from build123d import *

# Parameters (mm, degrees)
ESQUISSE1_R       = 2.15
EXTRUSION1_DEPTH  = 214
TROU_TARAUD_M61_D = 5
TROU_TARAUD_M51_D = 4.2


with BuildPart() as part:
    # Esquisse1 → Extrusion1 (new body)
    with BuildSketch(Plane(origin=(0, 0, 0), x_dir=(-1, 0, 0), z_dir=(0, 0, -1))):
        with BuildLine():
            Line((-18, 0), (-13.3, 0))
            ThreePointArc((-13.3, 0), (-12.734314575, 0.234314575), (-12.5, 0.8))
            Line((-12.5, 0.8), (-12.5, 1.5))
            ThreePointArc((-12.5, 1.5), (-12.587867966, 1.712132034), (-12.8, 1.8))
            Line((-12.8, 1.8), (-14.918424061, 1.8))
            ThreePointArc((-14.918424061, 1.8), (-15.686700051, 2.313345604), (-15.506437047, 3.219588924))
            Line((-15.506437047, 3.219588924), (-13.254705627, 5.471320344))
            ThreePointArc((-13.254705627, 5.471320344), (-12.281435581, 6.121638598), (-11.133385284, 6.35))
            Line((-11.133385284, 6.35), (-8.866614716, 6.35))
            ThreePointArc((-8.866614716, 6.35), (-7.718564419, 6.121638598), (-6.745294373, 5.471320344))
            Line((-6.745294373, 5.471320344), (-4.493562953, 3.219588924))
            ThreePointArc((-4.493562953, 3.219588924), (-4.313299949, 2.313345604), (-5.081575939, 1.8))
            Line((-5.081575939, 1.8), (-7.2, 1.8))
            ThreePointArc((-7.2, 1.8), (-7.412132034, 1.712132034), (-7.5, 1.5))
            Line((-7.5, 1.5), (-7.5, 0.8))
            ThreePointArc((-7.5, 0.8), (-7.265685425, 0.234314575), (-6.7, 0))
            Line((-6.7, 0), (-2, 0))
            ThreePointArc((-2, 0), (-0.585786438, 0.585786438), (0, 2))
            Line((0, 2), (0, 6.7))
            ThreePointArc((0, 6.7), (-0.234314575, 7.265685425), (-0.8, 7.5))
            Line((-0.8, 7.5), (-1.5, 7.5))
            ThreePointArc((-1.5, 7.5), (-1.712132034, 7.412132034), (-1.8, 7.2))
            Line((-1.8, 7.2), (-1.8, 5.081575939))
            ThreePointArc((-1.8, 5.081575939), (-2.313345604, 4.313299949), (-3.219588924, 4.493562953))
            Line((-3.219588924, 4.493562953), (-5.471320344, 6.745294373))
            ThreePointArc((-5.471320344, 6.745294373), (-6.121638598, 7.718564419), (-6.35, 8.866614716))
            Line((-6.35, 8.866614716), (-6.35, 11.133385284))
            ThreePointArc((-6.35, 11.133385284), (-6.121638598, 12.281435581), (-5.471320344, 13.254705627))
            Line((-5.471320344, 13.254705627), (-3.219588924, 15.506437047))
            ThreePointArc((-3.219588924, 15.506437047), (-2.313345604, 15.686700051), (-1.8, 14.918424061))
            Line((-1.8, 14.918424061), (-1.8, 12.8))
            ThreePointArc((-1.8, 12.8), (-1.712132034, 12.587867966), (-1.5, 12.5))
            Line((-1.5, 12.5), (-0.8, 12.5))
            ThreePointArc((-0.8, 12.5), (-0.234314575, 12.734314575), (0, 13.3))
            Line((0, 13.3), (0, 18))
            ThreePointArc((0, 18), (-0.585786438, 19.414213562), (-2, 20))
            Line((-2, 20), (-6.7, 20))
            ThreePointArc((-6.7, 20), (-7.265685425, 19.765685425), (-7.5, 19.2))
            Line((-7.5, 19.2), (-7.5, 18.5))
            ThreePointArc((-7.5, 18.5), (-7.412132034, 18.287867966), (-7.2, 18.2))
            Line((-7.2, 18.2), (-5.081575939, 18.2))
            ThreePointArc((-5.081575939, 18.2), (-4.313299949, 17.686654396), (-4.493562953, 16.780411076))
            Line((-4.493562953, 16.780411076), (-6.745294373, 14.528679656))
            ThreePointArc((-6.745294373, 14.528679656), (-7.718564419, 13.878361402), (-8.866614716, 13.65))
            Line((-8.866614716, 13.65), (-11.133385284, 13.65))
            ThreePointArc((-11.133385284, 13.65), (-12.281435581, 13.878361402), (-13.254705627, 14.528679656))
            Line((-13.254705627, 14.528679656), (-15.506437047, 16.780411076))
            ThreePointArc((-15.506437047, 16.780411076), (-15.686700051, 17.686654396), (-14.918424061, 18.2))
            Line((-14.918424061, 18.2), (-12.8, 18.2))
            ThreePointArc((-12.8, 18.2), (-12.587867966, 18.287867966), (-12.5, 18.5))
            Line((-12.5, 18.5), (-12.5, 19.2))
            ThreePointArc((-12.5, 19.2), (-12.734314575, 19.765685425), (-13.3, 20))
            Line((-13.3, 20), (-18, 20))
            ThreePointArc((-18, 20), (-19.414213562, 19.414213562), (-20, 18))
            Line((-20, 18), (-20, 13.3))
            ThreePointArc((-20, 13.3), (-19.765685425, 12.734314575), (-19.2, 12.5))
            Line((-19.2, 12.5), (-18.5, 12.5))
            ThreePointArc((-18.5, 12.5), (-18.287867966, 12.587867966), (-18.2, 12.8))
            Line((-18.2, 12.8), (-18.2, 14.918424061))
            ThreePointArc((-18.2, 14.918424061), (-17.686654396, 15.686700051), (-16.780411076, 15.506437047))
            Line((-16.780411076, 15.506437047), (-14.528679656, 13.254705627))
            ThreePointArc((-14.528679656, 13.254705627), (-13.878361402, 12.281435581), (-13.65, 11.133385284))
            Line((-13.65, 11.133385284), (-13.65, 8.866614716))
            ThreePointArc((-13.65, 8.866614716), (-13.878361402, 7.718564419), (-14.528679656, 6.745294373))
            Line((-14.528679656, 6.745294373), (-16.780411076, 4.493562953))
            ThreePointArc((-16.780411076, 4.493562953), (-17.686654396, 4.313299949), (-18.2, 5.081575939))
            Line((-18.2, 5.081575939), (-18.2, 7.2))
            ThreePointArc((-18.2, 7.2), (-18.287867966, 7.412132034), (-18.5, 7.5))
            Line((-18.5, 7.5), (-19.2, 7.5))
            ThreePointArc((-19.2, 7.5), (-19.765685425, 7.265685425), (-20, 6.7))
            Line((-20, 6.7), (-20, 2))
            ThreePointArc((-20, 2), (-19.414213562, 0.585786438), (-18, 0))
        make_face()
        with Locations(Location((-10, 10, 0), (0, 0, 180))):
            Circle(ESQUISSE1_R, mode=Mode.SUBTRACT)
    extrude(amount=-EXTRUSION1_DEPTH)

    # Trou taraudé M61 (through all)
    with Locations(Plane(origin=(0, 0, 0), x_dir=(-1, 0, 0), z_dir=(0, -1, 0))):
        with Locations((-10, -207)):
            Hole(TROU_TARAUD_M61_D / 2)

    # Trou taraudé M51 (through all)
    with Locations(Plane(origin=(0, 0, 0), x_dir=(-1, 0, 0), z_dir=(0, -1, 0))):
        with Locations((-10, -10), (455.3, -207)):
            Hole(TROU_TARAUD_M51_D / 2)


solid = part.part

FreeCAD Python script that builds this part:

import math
import FreeCAD as App
import Part
import Sketcher
Q = App.Units.Quantity

doc = App.newDocument("Part")
body = doc.addObject("PartDesign::Body", "Body")

# Sketch on XY plane
sketch1 = doc.addObject("Sketcher::SketchObject", "Sketch")
body.addObject(sketch1)
sketch1.AttachmentSupport = (doc.XY_Plane, [""])
sketch1.MapMode = "FlatFace"
sketch1.addGeometry(Part.LineSegment(App.Vector(18, 0, 0), App.Vector(13.3, 0, 0)), False)
sketch1.addGeometry(Part.ArcOfCircle(Part.Circle(App.Vector(13.3, 0.8, 0), App.Vector(0, 0, 1), 0.8), math.radians(180), math.radians(270)), False)
sketch1.addGeometry(Part.LineSegment(App.Vector(12.5, 0.8, 0), App.Vector(12.5, 1.5, 0)), False)
sketch1.addGeometry(Part.ArcOfCircle(Part.Circle(App.Vector(12.8, 1.5, 0), App.Vector(0, 0, 1), 0.3), math.radians(90), math.radians(180)), False)
sketch1.addGeometry(Part.LineSegment(App.Vector(12.8, 1.8, 0), App.Vector(14.918424, 1.8, 0)), False)
sketch1.addGeometry(Part.ArcOfCircle(Part.Circle(App.Vector(14.918424, 2.631576, 0), App.Vector(0, 0, 1), 0.831576), math.radians(-90), math.radians(45)), False)
sketch1.addGeometry(Part.LineSegment(App.Vector(15.506437, 3.219589, 0), App.Vector(13.254706, 5.47132, 0)), False)
sketch1.addGeometry(Part.ArcOfCircle(Part.Circle(App.Vector(11.133385, 3.35, 0), App.Vector(0, 0, 1), 3), math.radians(45), math.radians(90)), False)
sketch1.addGeometry(Part.LineSegment(App.Vector(11.133385, 6.35, 0), App.Vector(8.866615, 6.35, 0)), False)
sketch1.addGeometry(Part.ArcOfCircle(Part.Circle(App.Vector(8.866615, 3.35, 0), App.Vector(0, 0, 1), 3), math.radians(90), math.radians(135)), False)
sketch1.addGeometry(Part.LineSegment(App.Vector(6.745294, 5.47132, 0), App.Vector(4.493563, 3.219589, 0)), False)
sketch1.addGeometry(Part.ArcOfCircle(Part.Circle(App.Vector(5.081576, 2.631576, 0), App.Vector(0, 0, 1), 0.831576), math.radians(135), math.radians(270)), False)
sketch1.addGeometry(Part.LineSegment(App.Vector(5.081576, 1.8, 0), App.Vector(7.2, 1.8, 0)), False)
sketch1.addGeometry(Part.ArcOfCircle(Part.Circle(App.Vector(7.2, 1.5, 0), App.Vector(0, 0, 1), 0.3), math.radians(0), math.radians(90)), False)
sketch1.addGeometry(Part.LineSegment(App.Vector(7.5, 1.5, 0), App.Vector(7.5, 0.8, 0)), False)
sketch1.addGeometry(Part.ArcOfCircle(Part.Circle(App.Vector(6.7, 0.8, 0), App.Vector(0, 0, 1), 0.8), math.radians(-90), math.radians(0)), False)
sketch1.addGeometry(Part.LineSegment(App.Vector(6.7, 0, 0), App.Vector(2, 0, 0)), False)
sketch1.addGeometry(Part.ArcOfCircle(Part.Circle(App.Vector(2, 2, 0), App.Vector(0, 0, 1), 2), math.radians(-180), math.radians(-90)), False)
sketch1.addGeometry(Part.LineSegment(App.Vector(0, 2, 0), App.Vector(0, 6.7, 0)), False)
sketch1.addGeometry(Part.ArcOfCircle(Part.Circle(App.Vector(0.8, 6.7, 0), App.Vector(0, 0, 1), 0.8), math.radians(90), math.radians(180)), False)
sketch1.addGeometry(Part.LineSegment(App.Vector(0.8, 7.5, 0), App.Vector(1.5, 7.5, 0)), False)
sketch1.addGeometry(Part.ArcOfCircle(Part.Circle(App.Vector(1.5, 7.2, 0), App.Vector(0, 0, 1), 0.3), math.radians(0), math.radians(90)), False)
sketch1.addGeometry(Part.LineSegment(App.Vector(1.8, 7.2, 0), App.Vector(1.8, 5.081576, 0)), False)
sketch1.addGeometry(Part.ArcOfCircle(Part.Circle(App.Vector(2.631576, 5.081576, 0), App.Vector(0, 0, 1), 0.831576), math.radians(180), math.radians(315)), False)
sketch1.addGeometry(Part.LineSegment(App.Vector(3.219589, 4.493563, 0), App.Vector(5.47132, 6.745294, 0)), False)
sketch1.addGeometry(Part.ArcOfCircle(Part.Circle(App.Vector(3.35, 8.866615, 0), App.Vector(0, 0, 1), 3), math.radians(-45), math.radians(0)), False)
sketch1.addGeometry(Part.LineSegment(App.Vector(6.35, 8.866615, 0), App.Vector(6.35, 11.133385, 0)), False)
sketch1.addGeometry(Part.ArcOfCircle(Part.Circle(App.Vector(3.35, 11.133385, 0), App.Vector(0, 0, 1), 3), math.radians(0), math.radians(45)), False)
sketch1.addGeometry(Part.LineSegment(App.Vector(5.47132, 13.254706, 0), App.Vector(3.219589, 15.506437, 0)), False)
sketch1.addGeometry(Part.ArcOfCircle(Part.Circle(App.Vector(2.631576, 14.918424, 0), App.Vector(0, 0, 1), 0.831576), math.radians(45), math.radians(180)), False)
sketch1.addGeometry(Part.LineSegment(App.Vector(1.8, 14.918424, 0), App.Vector(1.8, 12.8, 0)), False)
sketch1.addGeometry(Part.ArcOfCircle(Part.Circle(App.Vector(1.5, 12.8, 0), App.Vector(0, 0, 1), 0.3), math.radians(-90), math.radians(0)), False)
sketch1.addGeometry(Part.LineSegment(App.Vector(1.5, 12.5, 0), App.Vector(0.8, 12.5, 0)), False)
sketch1.addGeometry(Part.ArcOfCircle(Part.Circle(App.Vector(0.8, 13.3, 0), App.Vector(0, 0, 1), 0.8), math.radians(180), math.radians(270)), False)
sketch1.addGeometry(Part.LineSegment(App.Vector(0, 13.3, 0), App.Vector(0, 18, 0)), False)
sketch1.addGeometry(Part.ArcOfCircle(Part.Circle(App.Vector(2, 18, 0), App.Vector(0, 0, 1), 2), math.radians(90), math.radians(180)), False)
sketch1.addGeometry(Part.LineSegment(App.Vector(2, 20, 0), App.Vector(6.7, 20, 0)), False)
sketch1.addGeometry(Part.ArcOfCircle(Part.Circle(App.Vector(6.7, 19.2, 0), App.Vector(0, 0, 1), 0.8), math.radians(0), math.radians(90)), False)
sketch1.addGeometry(Part.LineSegment(App.Vector(7.5, 19.2, 0), App.Vector(7.5, 18.5, 0)), False)
sketch1.addGeometry(Part.ArcOfCircle(Part.Circle(App.Vector(7.2, 18.5, 0), App.Vector(0, 0, 1), 0.3), math.radians(-90), math.radians(0)), False)
sketch1.addGeometry(Part.LineSegment(App.Vector(7.2, 18.2, 0), App.Vector(5.081576, 18.2, 0)), False)
sketch1.addGeometry(Part.ArcOfCircle(Part.Circle(App.Vector(5.081576, 17.368424, 0), App.Vector(0, 0, 1), 0.831576), math.radians(90), math.radians(225)), False)
sketch1.addGeometry(Part.LineSegment(App.Vector(4.493563, 16.780411, 0), App.Vector(6.745294, 14.52868, 0)), False)
sketch1.addGeometry(Part.ArcOfCircle(Part.Circle(App.Vector(8.866615, 16.65, 0), App.Vector(0, 0, 1), 3), math.radians(-135), math.radians(-90)), False)
sketch1.addGeometry(Part.LineSegment(App.Vector(8.866615, 13.65, 0), App.Vector(11.133385, 13.65, 0)), False)
sketch1.addGeometry(Part.ArcOfCircle(Part.Circle(App.Vector(11.133385, 16.65, 0), App.Vector(0, 0, 1), 3), math.radians(-90), math.radians(-45)), False)
sketch1.addGeometry(Part.LineSegment(App.Vector(13.254706, 14.52868, 0), App.Vector(15.506437, 16.780411, 0)), False)
sketch1.addGeometry(Part.ArcOfCircle(Part.Circle(App.Vector(14.918424, 17.368424, 0), App.Vector(0, 0, 1), 0.831576), math.radians(-45), math.radians(90)), False)
sketch1.addGeometry(Part.LineSegment(App.Vector(14.918424, 18.2, 0), App.Vector(12.8, 18.2, 0)), False)
sketch1.addGeometry(Part.ArcOfCircle(Part.Circle(App.Vector(12.8, 18.5, 0), App.Vector(0, 0, 1), 0.3), math.radians(-180), math.radians(-90)), False)
sketch1.addGeometry(Part.LineSegment(App.Vector(12.5, 18.5, 0), App.Vector(12.5, 19.2, 0)), False)
sketch1.addGeometry(Part.ArcOfCircle(Part.Circle(App.Vector(13.3, 19.2, 0), App.Vector(0, 0, 1), 0.8), math.radians(90), math.radians(180)), False)
sketch1.addGeometry(Part.LineSegment(App.Vector(13.3, 20, 0), App.Vector(18, 20, 0)), False)
sketch1.addGeometry(Part.ArcOfCircle(Part.Circle(App.Vector(18, 18, 0), App.Vector(0, 0, 1), 2), math.radians(0), math.radians(90)), False)
sketch1.addGeometry(Part.LineSegment(App.Vector(20, 18, 0), App.Vector(20, 13.3, 0)), False)
sketch1.addGeometry(Part.ArcOfCircle(Part.Circle(App.Vector(19.2, 13.3, 0), App.Vector(0, 0, 1), 0.8), math.radians(-90), math.radians(0)), False)
sketch1.addGeometry(Part.LineSegment(App.Vector(19.2, 12.5, 0), App.Vector(18.5, 12.5, 0)), False)
sketch1.addGeometry(Part.ArcOfCircle(Part.Circle(App.Vector(18.5, 12.8, 0), App.Vector(0, 0, 1), 0.3), math.radians(-180), math.radians(-90)), False)
sketch1.addGeometry(Part.LineSegment(App.Vector(18.2, 12.8, 0), App.Vector(18.2, 14.918424, 0)), False)
sketch1.addGeometry(Part.ArcOfCircle(Part.Circle(App.Vector(17.368424, 14.918424, 0), App.Vector(0, 0, 1), 0.831576), math.radians(0), math.radians(135)), False)
sketch1.addGeometry(Part.LineSegment(App.Vector(16.780411, 15.506437, 0), App.Vector(14.52868, 13.254706, 0)), False)
sketch1.addGeometry(Part.ArcOfCircle(Part.Circle(App.Vector(16.65, 11.133385, 0), App.Vector(0, 0, 1), 3), math.radians(135), math.radians(180)), False)
sketch1.addGeometry(Part.LineSegment(App.Vector(13.65, 11.133385, 0), App.Vector(13.65, 8.866615, 0)), False)
sketch1.addGeometry(Part.ArcOfCircle(Part.Circle(App.Vector(16.65, 8.866615, 0), App.Vector(0, 0, 1), 3), math.radians(180), math.radians(225)), False)
sketch1.addGeometry(Part.LineSegment(App.Vector(14.52868, 6.745294, 0), App.Vector(16.780411, 4.493563, 0)), False)
sketch1.addGeometry(Part.ArcOfCircle(Part.Circle(App.Vector(17.368424, 5.081576, 0), App.Vector(0, 0, 1), 0.831576), math.radians(-135), math.radians(0)), False)
sketch1.addGeometry(Part.LineSegment(App.Vector(18.2, 5.081576, 0), App.Vector(18.2, 7.2, 0)), False)
sketch1.addGeometry(Part.ArcOfCircle(Part.Circle(App.Vector(18.5, 7.2, 0), App.Vector(0, 0, 1), 0.3), math.radians(90), math.radians(180)), False)
sketch1.addGeometry(Part.LineSegment(App.Vector(18.5, 7.5, 0), App.Vector(19.2, 7.5, 0)), False)
sketch1.addGeometry(Part.ArcOfCircle(Part.Circle(App.Vector(19.2, 6.7, 0), App.Vector(0, 0, 1), 0.8), math.radians(0), math.radians(90)), False)
sketch1.addGeometry(Part.LineSegment(App.Vector(20, 6.7, 0), App.Vector(20, 2, 0)), False)
sketch1.addGeometry(Part.ArcOfCircle(Part.Circle(App.Vector(18, 2, 0), App.Vector(0, 0, 1), 2), math.radians(-90), math.radians(0)), False)
sketch1.addGeometry(Part.Circle(App.Vector(10, 10, 0), App.Vector(0, 0, 1), 2.15), False)
sketch1.addConstraint(Sketcher.Constraint("Tangent", 0, 2, 1, 2))
sketch1.addConstraint(Sketcher.Constraint("Tangent", 1, 1, 2, 1))
sketch1.addConstraint(Sketcher.Constraint("Tangent", 2, 2, 3, 2))
sketch1.addConstraint(Sketcher.Constraint("Tangent", 3, 1, 4, 1))
sketch1.addConstraint(Sketcher.Constraint("Tangent", 4, 2, 5, 1))
sketch1.addConstraint(Sketcher.Constraint("Tangent", 5, 2, 6, 1))
sketch1.addConstraint(Sketcher.Constraint("Tangent", 6, 2, 7, 1))
sketch1.addConstraint(Sketcher.Constraint("Tangent", 7, 2, 8, 1))
sketch1.addConstraint(Sketcher.Constraint("Tangent", 8, 2, 9, 1))
sketch1.addConstraint(Sketcher.Constraint("Tangent", 9, 2, 10, 1))
sketch1.addConstraint(Sketcher.Constraint("Tangent", 10, 2, 11, 1))
sketch1.addConstraint(Sketcher.Constraint("Tangent", 11, 2, 12, 1))
sketch1.addConstraint(Sketcher.Constraint("Tangent", 12, 2, 13, 2))
sketch1.addConstraint(Sketcher.Constraint("Tangent", 13, 1, 14, 1))
sketch1.addConstraint(Sketcher.Constraint("Tangent", 14, 2, 15, 2))
sketch1.addConstraint(Sketcher.Constraint("Tangent", 15, 1, 16, 1))
sketch1.addConstraint(Sketcher.Constraint("Tangent", 16, 2, 17, 2))
sketch1.addConstraint(Sketcher.Constraint("Tangent", 17, 1, 18, 1))
sketch1.addConstraint(Sketcher.Constraint("Tangent", 18, 2, 19, 2))
sketch1.addConstraint(Sketcher.Constraint("Tangent", 19, 1, 20, 1))
sketch1.addConstraint(Sketcher.Constraint("Tangent", 20, 2, 21, 2))
sketch1.addConstraint(Sketcher.Constraint("Tangent", 21, 1, 22, 1))
sketch1.addConstraint(Sketcher.Constraint("Tangent", 22, 2, 23, 1))
sketch1.addConstraint(Sketcher.Constraint("Tangent", 23, 2, 24, 1))
sketch1.addConstraint(Sketcher.Constraint("Tangent", 24, 2, 25, 1))
sketch1.addConstraint(Sketcher.Constraint("Tangent", 25, 2, 26, 1))
sketch1.addConstraint(Sketcher.Constraint("Tangent", 26, 2, 27, 1))
sketch1.addConstraint(Sketcher.Constraint("Tangent", 27, 2, 28, 1))
sketch1.addConstraint(Sketcher.Constraint("Tangent", 28, 2, 29, 1))
sketch1.addConstraint(Sketcher.Constraint("Tangent", 29, 2, 30, 1))
sketch1.addConstraint(Sketcher.Constraint("Tangent", 30, 2, 31, 2))
sketch1.addConstraint(Sketcher.Constraint("Tangent", 31, 1, 32, 1))
sketch1.addConstraint(Sketcher.Constraint("Tangent", 32, 2, 33, 2))
sketch1.addConstraint(Sketcher.Constraint("Tangent", 33, 1, 34, 1))
sketch1.addConstraint(Sketcher.Constraint("Tangent", 34, 2, 35, 2))
sketch1.addConstraint(Sketcher.Constraint("Tangent", 35, 1, 36, 1))
sketch1.addConstraint(Sketcher.Constraint("Tangent", 36, 2, 37, 2))
sketch1.addConstraint(Sketcher.Constraint("Tangent", 37, 1, 38, 1))
sketch1.addConstraint(Sketcher.Constraint("Tangent", 38, 2, 39, 2))
sketch1.addConstraint(Sketcher.Constraint("Tangent", 39, 1, 40, 1))
sketch1.addConstraint(Sketcher.Constraint("Tangent", 40, 2, 41, 1))
sketch1.addConstraint(Sketcher.Constraint("Tangent", 41, 2, 42, 1))
sketch1.addConstraint(Sketcher.Constraint("Tangent", 42, 2, 43, 1))
sketch1.addConstraint(Sketcher.Constraint("Tangent", 43, 2, 44, 1))
sketch1.addConstraint(Sketcher.Constraint("Tangent", 44, 2, 45, 1))
sketch1.addConstraint(Sketcher.Constraint("Tangent", 45, 2, 46, 1))
sketch1.addConstraint(Sketcher.Constraint("Tangent", 46, 2, 47, 1))
sketch1.addConstraint(Sketcher.Constraint("Tangent", 47, 2, 48, 1))
sketch1.addConstraint(Sketcher.Constraint("Tangent", 48, 2, 49, 2))
sketch1.addConstraint(Sketcher.Constraint("Tangent", 49, 1, 50, 1))
sketch1.addConstraint(Sketcher.Constraint("Tangent", 50, 2, 51, 2))
sketch1.addConstraint(Sketcher.Constraint("Tangent", 51, 1, 52, 1))
sketch1.addConstraint(Sketcher.Constraint("Tangent", 52, 2, 53, 2))
sketch1.addConstraint(Sketcher.Constraint("Tangent", 53, 1, 54, 1))
sketch1.addConstraint(Sketcher.Constraint("Tangent", 54, 2, 55, 2))
sketch1.addConstraint(Sketcher.Constraint("Tangent", 55, 1, 56, 1))
sketch1.addConstraint(Sketcher.Constraint("Tangent", 56, 2, 57, 2))
sketch1.addConstraint(Sketcher.Constraint("Tangent", 57, 1, 58, 1))
sketch1.addConstraint(Sketcher.Constraint("Tangent", 58, 2, 59, 1))
sketch1.addConstraint(Sketcher.Constraint("Tangent", 59, 2, 60, 1))
sketch1.addConstraint(Sketcher.Constraint("Tangent", 60, 2, 61, 1))
sketch1.addConstraint(Sketcher.Constraint("Tangent", 61, 2, 62, 1))
sketch1.addConstraint(Sketcher.Constraint("Tangent", 62, 2, 63, 1))
sketch1.addConstraint(Sketcher.Constraint("Tangent", 63, 2, 64, 1))
sketch1.addConstraint(Sketcher.Constraint("Tangent", 64, 2, 65, 1))
sketch1.addConstraint(Sketcher.Constraint("Tangent", 65, 2, 66, 1))
sketch1.addConstraint(Sketcher.Constraint("Tangent", 66, 2, 67, 2))
sketch1.addConstraint(Sketcher.Constraint("Tangent", 67, 1, 68, 1))
sketch1.addConstraint(Sketcher.Constraint("Tangent", 68, 2, 69, 2))
sketch1.addConstraint(Sketcher.Constraint("Tangent", 69, 1, 70, 1))
sketch1.addConstraint(Sketcher.Constraint("Tangent", 70, 2, 71, 2))
sketch1.addConstraint(Sketcher.Constraint("Tangent", 71, 1, 0, 1))
sketch1.addConstraint(Sketcher.Constraint("Horizontal", 0))
sketch1.addConstraint(Sketcher.Constraint("Vertical", 2))
sketch1.addConstraint(Sketcher.Constraint("Horizontal", 4))
sketch1.addConstraint(Sketcher.Constraint("Horizontal", 8))
sketch1.addConstraint(Sketcher.Constraint("Horizontal", 12))
sketch1.addConstraint(Sketcher.Constraint("Vertical", 14))
sketch1.addConstraint(Sketcher.Constraint("Horizontal", 16))
sketch1.addConstraint(Sketcher.Constraint("Vertical", 18))
sketch1.addConstraint(Sketcher.Constraint("Horizontal", 20))
sketch1.addConstraint(Sketcher.Constraint("Vertical", 22))
sketch1.addConstraint(Sketcher.Constraint("Vertical", 26))
sketch1.addConstraint(Sketcher.Constraint("Vertical", 30))
sketch1.addConstraint(Sketcher.Constraint("Horizontal", 32))
sketch1.addConstraint(Sketcher.Constraint("Vertical", 34))
sketch1.addConstraint(Sketcher.Constraint("Horizontal", 36))
sketch1.addConstraint(Sketcher.Constraint("Vertical", 38))
sketch1.addConstraint(Sketcher.Constraint("Horizontal", 40))
sketch1.addConstraint(Sketcher.Constraint("Horizontal", 44))
sketch1.addConstraint(Sketcher.Constraint("Horizontal", 48))
sketch1.addConstraint(Sketcher.Constraint("Vertical", 50))
sketch1.addConstraint(Sketcher.Constraint("Horizontal", 52))
sketch1.addConstraint(Sketcher.Constraint("Vertical", 54))
sketch1.addConstraint(Sketcher.Constraint("Horizontal", 56))
sketch1.addConstraint(Sketcher.Constraint("Vertical", 58))
sketch1.addConstraint(Sketcher.Constraint("Vertical", 62))
sketch1.addConstraint(Sketcher.Constraint("Vertical", 66))
sketch1.addConstraint(Sketcher.Constraint("Horizontal", 68))
sketch1.addConstraint(Sketcher.Constraint("Vertical", 70))
sketch1.addConstraint(Sketcher.Constraint("Equal", 7, 9))
sketch1.addConstraint(Sketcher.Constraint("Equal", 5, 11))
sketch1.addConstraint(Sketcher.Constraint("Equal", 3, 13))
sketch1.addConstraint(Sketcher.Constraint("Equal", 1, 15))
sketch1.addConstraint(Sketcher.Constraint("Equal", 15, 19))
sketch1.addConstraint(Sketcher.Constraint("Equal", 13, 21))
sketch1.addConstraint(Sketcher.Constraint("Equal", 11, 23))
sketch1.addConstraint(Sketcher.Constraint("Equal", 9, 25))
sketch1.addConstraint(Sketcher.Constraint("Equal", 25, 27))
sketch1.addConstraint(Sketcher.Constraint("Equal", 23, 29))
sketch1.addConstraint(Sketcher.Constraint("Equal", 21, 31))
sketch1.addConstraint(Sketcher.Constraint("Equal", 19, 33))
sketch1.addConstraint(Sketcher.Constraint("Equal", 17, 35))
sketch1.addConstraint(Sketcher.Constraint("Equal", 33, 37))
sketch1.addConstraint(Sketcher.Constraint("Equal", 31, 39))
sketch1.addConstraint(Sketcher.Constraint("Equal", 29, 41))
sketch1.addConstraint(Sketcher.Constraint("Equal", 27, 43))
sketch1.addConstraint(Sketcher.Constraint("Equal", 43, 45))
sketch1.addConstraint(Sketcher.Constraint("Equal", 41, 47))
sketch1.addConstraint(Sketcher.Constraint("Equal", 39, 49))
sketch1.addConstraint(Sketcher.Constraint("Equal", 37, 51))
sketch1.addConstraint(Sketcher.Constraint("Equal", 35, 53))
sketch1.addConstraint(Sketcher.Constraint("Equal", 51, 55))
sketch1.addConstraint(Sketcher.Constraint("Equal", 49, 57))
sketch1.addConstraint(Sketcher.Constraint("Equal", 47, 59))
sketch1.addConstraint(Sketcher.Constraint("Equal", 45, 61))
sketch1.addConstraint(Sketcher.Constraint("Equal", 61, 63))
sketch1.addConstraint(Sketcher.Constraint("Equal", 59, 65))
sketch1.addConstraint(Sketcher.Constraint("Equal", 57, 67))
sketch1.addConstraint(Sketcher.Constraint("Equal", 55, 69))
sketch1.addConstraint(Sketcher.Constraint("Equal", 53, 71))
sketch1.addConstraint(Sketcher.Constraint("PointOnObject", 0, 2, -1))
sketch1.addConstraint(Sketcher.Constraint("PointOnObject", 15, 1, -1))
sketch1.addConstraint(Sketcher.Constraint("PointOnObject", 17, 1, -2))
sketch1.addConstraint(Sketcher.Constraint("PointOnObject", 33, 1, -2))
sketch1.addConstraint(Sketcher.Constraint("Perpendicular", 6, 10))
sketch1.addConstraint(Sketcher.Constraint("Parallel", 10, 24))
sketch1.addConstraint(Sketcher.Constraint("Perpendicular", 24, 28))
sketch1.addConstraint(Sketcher.Constraint("Parallel", 28, 42))
sketch1.addConstraint(Sketcher.Constraint("Perpendicular", 42, 46))
sketch1.addConstraint(Sketcher.Constraint("Parallel", 46, 60))
sketch1.addConstraint(Sketcher.Constraint("Perpendicular", 60, 64))
sketch1.addConstraint(Sketcher.Constraint("Horizontal", 5, 3, 11, 3))
sketch1.addConstraint(Sketcher.Constraint("Horizontal", 41, 3, 47, 3))
sketch1.addConstraint(Sketcher.Constraint("Horizontal", 37, 3, 51, 3))
sketch1.addConstraint(Sketcher.Constraint("Horizontal", 33, 3, 55, 3))
sketch1.addConstraint(Sketcher.Constraint("Horizontal", 29, 3, 59, 3))
sketch1.addConstraint(Sketcher.Constraint("Horizontal", 27, 3, 61, 3))
sketch1.addConstraint(Sketcher.Constraint("Horizontal", 25, 3, 63, 3))
sketch1.addConstraint(Sketcher.Constraint("Horizontal", 23, 3, 65, 3))
sketch1.addConstraint(Sketcher.Constraint("Horizontal", 21, 3, 67, 3))
sketch1.addConstraint(Sketcher.Constraint("Horizontal", 6, 2, 9, 2))
sketch1.addConstraint(Sketcher.Constraint("Vertical", 23, 3, 29, 3))
sketch1.addConstraint(Sketcher.Constraint("Vertical", 15, 3, 37, 3))
sketch1.addConstraint(Sketcher.Constraint("Vertical", 11, 3, 41, 3))
sketch1.addConstraint(Sketcher.Constraint("Vertical", 9, 3, 43, 3))
sketch1.addConstraint(Sketcher.Constraint("Vertical", 7, 3, 45, 3))
sketch1.addConstraint(Sketcher.Constraint("Vertical", 3, 3, 49, 3))
sketch1.addConstraint(Sketcher.Constraint("Vertical", 55, 3, 69, 3))
sketch1.addConstraint(Sketcher.Constraint("Equal", 4, 12))
sketch1.addConstraint(Sketcher.Constraint("Equal", 0, 16))
sketch1.addConstraint(Sketcher.Constraint("Equal", 32, 56))
sketch1.addConstraint(Sketcher.Constraint("Equal", 68, 2))
sketch1.addConstraint(Sketcher.Constraint("Equal", 52, 18))
sketch1.addConstraint(Sketcher.Constraint("Equal", 48, 22))
sketch1.addConstraint(Sketcher.Constraint("Equal", 44, 26))
sketch1.addConstraint(Sketcher.Constraint("Equal", 22, 30))
sketch1.addConstraint(Sketcher.Constraint("Equal", 18, 34))
sketch1.addConstraint(Sketcher.Constraint("Equal", 14, 38))
sketch1.addConstraint(Sketcher.Constraint("Equal", 10, 24))
sketch1.addConstraint(Sketcher.Constraint("Radius", 7, Q("3 mm")))
sketch1.addConstraint(Sketcher.Constraint("Radius", 17, Q("2 mm")))
sketch1.addConstraint(Sketcher.Constraint("Diameter", 72, Q("4.3 mm")))
sketch1.addConstraint(Sketcher.Constraint("Radius", 1, Q("0.8 mm")))
sketch1.addConstraint(Sketcher.Constraint("Radius", 3, Q("0.3 mm")))
sketch1.addConstraint(Sketcher.Constraint("DistanceX", 0, 2, 0, 1, Q("4.7 mm")))
sketch1.addConstraint(Sketcher.Constraint("DistanceX", 20, 1, 20, 2, Q("0.7 mm")))
sketch1.addConstraint(Sketcher.Constraint("DistanceY", -1, 1, 35, 3, Q("18 mm")))
sketch1.addConstraint(Sketcher.Constraint("DistanceX", -1, 1, 72, 3, Q("10 mm")))
sketch1.addConstraint(Sketcher.Constraint("DistanceY", -1, 1, 72, 3, Q("10 mm")))
sketch1.addConstraint(Sketcher.Constraint("DistanceY", -1, 1, 7, 3, Q("3.35 mm")))
sketch1.addConstraint(Sketcher.Constraint("Radius", 5, Q("0.831576 mm")))
sketch1.addConstraint(Sketcher.Constraint("DistanceX", 8, 2, 8, 1, Q("2.266771 mm")))
pad1 = doc.addObject("PartDesign::Pad", "Pad")
body.addObject(pad1)
pad1.Profile = sketch1
pad1.Length = 214

# Sketch on XZ plane
sketch2 = doc.addObject("Sketcher::SketchObject", "Sketch001")
body.addObject(sketch2)
sketch2.AttachmentSupport = (doc.XZ_Plane, [""])
sketch2.MapMode = "FlatFace"
sketch2.addGeometry(Part.Circle(App.Vector(10, 207, 0), App.Vector(0, 0, 1), 2.5), False)
sketch2.addConstraint(Sketcher.Constraint("Diameter", 0, Q("5 mm")))
sketch2.addConstraint(Sketcher.Constraint("DistanceX", -1, 1, 0, 3, Q("10 mm")))
sketch2.addConstraint(Sketcher.Constraint("DistanceY", -1, 1, 0, 3, Q("207 mm")))
doc.recompute()
hole = doc.addObject("PartDesign::Hole", "Hole")
body.addObject(hole)
hole.Profile = sketch2
hole.ThreadType = "None"
hole.Diameter = 5
hole.DepthType = "ThroughAll"

# Sketch on XZ plane
sketch3 = doc.addObject("Sketcher::SketchObject", "Sketch002")
body.addObject(sketch3)
sketch3.AttachmentSupport = (doc.XZ_Plane, [""])
sketch3.MapMode = "FlatFace"
sketch3.addGeometry(Part.Circle(App.Vector(10, 10, 0), App.Vector(0, 0, 1), 2.1), False)
sketch3.addGeometry(Part.Circle(App.Vector(-455.3, 207, 0), App.Vector(0, 0, 1), 2.1), False)
sketch3.addConstraint(Sketcher.Constraint("Equal", 0, 1))
sketch3.addConstraint(Sketcher.Constraint("Diameter", 0, Q("4.2 mm")))
sketch3.addConstraint(Sketcher.Constraint("DistanceX", -1, 1, 0, 3, Q("10 mm")))
sketch3.addConstraint(Sketcher.Constraint("DistanceY", -1, 1, 0, 3, Q("10 mm")))
sketch3.addConstraint(Sketcher.Constraint("DistanceY", -1, 1, 1, 3, Q("207 mm")))
sketch3.addConstraint(Sketcher.Constraint("DistanceX", 1, 3, -1, 1, Q("455.3 mm")))
doc.recompute()
hole2 = doc.addObject("PartDesign::Hole", "Hole001")
body.addObject(hole2)
hole2.Profile = sketch3
hole2.ThreadType = "None"
hole2.Diameter = 4.2
hole2.DepthType = "ThroughAll"

doc.recompute()
